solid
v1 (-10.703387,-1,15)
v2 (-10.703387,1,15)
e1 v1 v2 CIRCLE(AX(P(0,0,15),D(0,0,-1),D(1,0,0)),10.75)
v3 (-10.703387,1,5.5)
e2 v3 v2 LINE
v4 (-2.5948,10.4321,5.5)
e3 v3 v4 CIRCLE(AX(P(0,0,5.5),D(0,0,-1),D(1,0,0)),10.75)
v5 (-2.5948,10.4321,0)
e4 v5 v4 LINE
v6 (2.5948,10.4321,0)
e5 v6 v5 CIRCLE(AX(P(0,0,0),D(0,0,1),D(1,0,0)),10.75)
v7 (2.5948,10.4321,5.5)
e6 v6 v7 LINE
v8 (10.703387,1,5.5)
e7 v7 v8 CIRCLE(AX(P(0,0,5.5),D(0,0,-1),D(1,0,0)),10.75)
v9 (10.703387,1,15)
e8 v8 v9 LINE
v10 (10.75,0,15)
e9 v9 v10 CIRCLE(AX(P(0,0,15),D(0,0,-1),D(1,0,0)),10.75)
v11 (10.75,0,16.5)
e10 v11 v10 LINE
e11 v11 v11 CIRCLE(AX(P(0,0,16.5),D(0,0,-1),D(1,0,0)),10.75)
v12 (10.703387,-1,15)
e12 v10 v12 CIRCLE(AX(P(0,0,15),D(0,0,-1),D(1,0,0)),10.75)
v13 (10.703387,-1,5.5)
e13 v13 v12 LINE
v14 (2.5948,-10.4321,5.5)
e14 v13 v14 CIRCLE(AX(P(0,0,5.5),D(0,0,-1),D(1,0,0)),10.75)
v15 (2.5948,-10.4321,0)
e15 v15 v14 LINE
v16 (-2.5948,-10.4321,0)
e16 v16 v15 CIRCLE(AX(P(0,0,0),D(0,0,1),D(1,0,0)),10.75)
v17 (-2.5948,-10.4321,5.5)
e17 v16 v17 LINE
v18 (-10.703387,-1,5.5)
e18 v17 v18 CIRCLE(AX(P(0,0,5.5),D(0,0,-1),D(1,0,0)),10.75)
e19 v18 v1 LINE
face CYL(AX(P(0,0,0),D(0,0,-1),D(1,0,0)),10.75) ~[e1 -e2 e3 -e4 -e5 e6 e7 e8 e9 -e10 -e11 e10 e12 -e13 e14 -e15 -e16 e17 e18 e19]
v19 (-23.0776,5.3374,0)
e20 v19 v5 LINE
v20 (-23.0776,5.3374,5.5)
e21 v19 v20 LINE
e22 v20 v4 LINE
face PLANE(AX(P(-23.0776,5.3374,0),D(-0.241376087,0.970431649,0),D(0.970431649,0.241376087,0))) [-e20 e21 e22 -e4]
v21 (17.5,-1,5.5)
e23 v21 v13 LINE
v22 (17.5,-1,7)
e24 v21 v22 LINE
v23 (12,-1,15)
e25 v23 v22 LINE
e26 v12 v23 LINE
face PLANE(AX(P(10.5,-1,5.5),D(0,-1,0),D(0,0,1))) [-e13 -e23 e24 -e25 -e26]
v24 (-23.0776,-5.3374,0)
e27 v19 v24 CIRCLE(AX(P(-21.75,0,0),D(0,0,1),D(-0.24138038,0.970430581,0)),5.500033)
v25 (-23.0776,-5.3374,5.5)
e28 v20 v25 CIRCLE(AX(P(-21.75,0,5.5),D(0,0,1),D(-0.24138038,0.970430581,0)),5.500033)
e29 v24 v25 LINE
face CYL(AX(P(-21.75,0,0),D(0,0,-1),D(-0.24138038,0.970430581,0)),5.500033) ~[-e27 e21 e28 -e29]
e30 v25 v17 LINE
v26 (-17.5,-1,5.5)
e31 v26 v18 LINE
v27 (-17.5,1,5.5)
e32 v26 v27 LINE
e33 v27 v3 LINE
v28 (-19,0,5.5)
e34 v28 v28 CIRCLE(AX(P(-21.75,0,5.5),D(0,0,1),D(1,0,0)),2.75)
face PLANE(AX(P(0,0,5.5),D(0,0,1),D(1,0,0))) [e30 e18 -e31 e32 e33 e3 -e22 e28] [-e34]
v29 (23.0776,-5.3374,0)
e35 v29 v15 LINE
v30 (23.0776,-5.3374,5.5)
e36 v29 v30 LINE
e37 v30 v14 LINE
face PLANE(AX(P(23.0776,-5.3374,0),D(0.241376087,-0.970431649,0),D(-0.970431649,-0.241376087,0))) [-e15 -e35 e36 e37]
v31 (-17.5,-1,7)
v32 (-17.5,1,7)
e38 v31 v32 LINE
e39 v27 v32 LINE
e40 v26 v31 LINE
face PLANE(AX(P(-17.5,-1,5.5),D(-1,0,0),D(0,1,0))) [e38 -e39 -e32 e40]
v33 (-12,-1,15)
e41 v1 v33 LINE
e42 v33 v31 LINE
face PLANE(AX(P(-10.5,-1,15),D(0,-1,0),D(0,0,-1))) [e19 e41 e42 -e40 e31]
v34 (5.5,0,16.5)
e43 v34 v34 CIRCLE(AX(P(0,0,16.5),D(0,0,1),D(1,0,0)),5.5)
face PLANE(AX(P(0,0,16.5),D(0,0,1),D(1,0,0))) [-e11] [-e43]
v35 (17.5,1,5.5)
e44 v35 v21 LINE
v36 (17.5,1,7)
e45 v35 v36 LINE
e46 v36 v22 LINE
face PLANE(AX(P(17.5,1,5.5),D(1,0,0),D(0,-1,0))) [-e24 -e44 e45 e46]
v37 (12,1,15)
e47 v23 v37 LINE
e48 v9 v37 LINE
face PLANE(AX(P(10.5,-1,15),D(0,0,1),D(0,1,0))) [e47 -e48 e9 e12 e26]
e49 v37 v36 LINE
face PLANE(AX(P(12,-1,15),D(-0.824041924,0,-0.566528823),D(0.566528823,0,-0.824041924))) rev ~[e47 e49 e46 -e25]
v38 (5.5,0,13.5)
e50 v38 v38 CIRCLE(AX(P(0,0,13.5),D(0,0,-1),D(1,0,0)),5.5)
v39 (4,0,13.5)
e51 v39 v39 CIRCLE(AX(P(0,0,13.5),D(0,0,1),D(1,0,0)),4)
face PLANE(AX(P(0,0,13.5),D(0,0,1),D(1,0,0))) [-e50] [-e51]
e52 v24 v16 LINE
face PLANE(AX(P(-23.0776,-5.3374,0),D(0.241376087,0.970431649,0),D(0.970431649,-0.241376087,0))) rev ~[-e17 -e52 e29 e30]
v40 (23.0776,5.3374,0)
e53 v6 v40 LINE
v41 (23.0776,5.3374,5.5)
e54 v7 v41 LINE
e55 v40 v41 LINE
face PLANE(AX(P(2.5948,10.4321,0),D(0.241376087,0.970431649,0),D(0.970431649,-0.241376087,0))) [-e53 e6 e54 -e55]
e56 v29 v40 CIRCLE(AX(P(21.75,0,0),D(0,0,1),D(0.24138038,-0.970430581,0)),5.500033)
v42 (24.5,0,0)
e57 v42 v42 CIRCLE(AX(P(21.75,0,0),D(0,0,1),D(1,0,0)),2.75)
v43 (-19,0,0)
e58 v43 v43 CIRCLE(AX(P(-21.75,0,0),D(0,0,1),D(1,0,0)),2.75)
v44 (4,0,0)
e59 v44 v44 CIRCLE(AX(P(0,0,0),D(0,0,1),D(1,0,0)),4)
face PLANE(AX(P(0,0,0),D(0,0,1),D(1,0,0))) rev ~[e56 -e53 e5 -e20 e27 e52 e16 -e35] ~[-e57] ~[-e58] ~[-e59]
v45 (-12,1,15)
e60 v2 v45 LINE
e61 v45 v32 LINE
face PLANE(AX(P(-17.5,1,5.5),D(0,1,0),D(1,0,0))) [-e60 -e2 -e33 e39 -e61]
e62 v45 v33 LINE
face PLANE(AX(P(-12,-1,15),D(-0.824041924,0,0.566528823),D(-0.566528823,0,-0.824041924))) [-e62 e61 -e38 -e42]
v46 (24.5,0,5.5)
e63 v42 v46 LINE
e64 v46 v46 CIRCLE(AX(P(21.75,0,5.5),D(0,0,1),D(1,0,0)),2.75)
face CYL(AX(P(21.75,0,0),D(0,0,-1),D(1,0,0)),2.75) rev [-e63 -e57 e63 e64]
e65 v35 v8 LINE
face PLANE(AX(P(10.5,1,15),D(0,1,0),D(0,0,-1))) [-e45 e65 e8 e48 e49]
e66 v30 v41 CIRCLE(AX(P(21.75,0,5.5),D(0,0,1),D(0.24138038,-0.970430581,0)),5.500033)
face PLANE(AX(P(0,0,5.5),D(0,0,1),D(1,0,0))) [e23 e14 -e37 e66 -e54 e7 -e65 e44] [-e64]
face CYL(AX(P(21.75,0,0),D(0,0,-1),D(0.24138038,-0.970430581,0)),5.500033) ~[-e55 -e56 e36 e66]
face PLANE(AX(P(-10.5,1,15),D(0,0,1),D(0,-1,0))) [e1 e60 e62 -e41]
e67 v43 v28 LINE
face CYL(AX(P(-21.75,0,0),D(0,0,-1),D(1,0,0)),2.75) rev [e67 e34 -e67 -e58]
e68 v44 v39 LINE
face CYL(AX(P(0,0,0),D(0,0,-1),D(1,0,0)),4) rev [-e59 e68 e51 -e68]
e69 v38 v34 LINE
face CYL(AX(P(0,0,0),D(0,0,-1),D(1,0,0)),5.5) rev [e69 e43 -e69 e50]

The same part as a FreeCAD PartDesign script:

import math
import FreeCAD as App
import Part
import Sketcher
Q = App.Units.Quantity

doc = App.newDocument("Part")
body = doc.addObject("PartDesign::Body", "Body")

sketch1 = body.newObject("Sketcher::SketchObject", "Sketch")
sketch1.AttachmentSupport = (doc.getObject("XY_Plane"), [""])
sketch1.MapMode = "FlatFace"
sketch1.addGeometry([
    Part.ArcOfCircle(Part.Circle(App.Vector(0, 0, 0), App.Vector(0, 0, 1), 10.8), math.radians(-104), math.radians(-76)),
    Part.LineSegment(App.Vector(2.6, -10.4, 0), App.Vector(23.1, -5.3, 0)),
    Part.ArcOfCircle(Part.Circle(App.Vector(21.8, 0, 0), App.Vector(0, 0, 1), 5.5), math.radians(-76), math.radians(76)),
    Part.LineSegment(App.Vector(23.1, 5.3, 0), App.Vector(2.6, 10.4, 0)),
    Part.ArcOfCircle(Part.Circle(App.Vector(0, 0, 0), App.Vector(0, 0, 1), 10.8), math.radians(76), math.radians(104)),
    Part.LineSegment(App.Vector(-2.6, 10.4, 0), App.Vector(-23.1, 5.3, 0)),
    Part.ArcOfCircle(Part.Circle(App.Vector(-21.8, 0, 0), App.Vector(0, 0, 1), 5.5), math.radians(104), math.radians(256)),
    Part.LineSegment(App.Vector(-23.1, -5.3, 0), App.Vector(-2.6, -10.4, 0)),
    Part.Circle(App.Vector(21.8, 0, 0), App.Vector(0, 0, 1), 2.8),
    Part.Circle(App.Vector(-21.8, 0, 0), App.Vector(0, 0, 1), 2.8),
    Part.Circle(App.Vector(0, 0, 0), App.Vector(0, 0, 1), 4),
], False)
sketch1.addConstraint([
    Sketcher.Constraint("Tangent", 0, 2, 1, 1),
    Sketcher.Constraint("Tangent", 1, 2, 2, 1),
    Sketcher.Constraint("Tangent", 2, 2, 3, 1),
    Sketcher.Constraint("Tangent", 3, 2, 4, 1),
    Sketcher.Constraint("Tangent", 4, 2, 5, 1),
    Sketcher.Constraint("Tangent", 5, 2, 6, 1),
    Sketcher.Constraint("Tangent", 6, 2, 7, 1),
    Sketcher.Constraint("Tangent", 7, 2, 0, 1),
    Sketcher.Constraint("Coincident", 0, 3, -1, 1),
    Sketcher.Constraint("Coincident", 4, 3, -1, 1),
    Sketcher.Constraint("Coincident", 10, 3, -1, 1),
    Sketcher.Constraint("Coincident", 8, 3, 2, 3),
    Sketcher.Constraint("Coincident", 9, 3, 6, 3),
    Sketcher.Constraint("Equal", 0, 4),
    Sketcher.Constraint("Equal", 2, 6),
    Sketcher.Constraint("Equal", 8, 9),
    Sketcher.Constraint("Symmetric", 2, 3, 6, 3, -1, 1),
    Sketcher.Constraint("PointOnObject", 2, 3, -1),
    Sketcher.Constraint("Diameter", 10, Q("8 mm")),
    Sketcher.Constraint("Diameter", 8, Q("5.5 mm")),
    Sketcher.Constraint("Radius", 2, Q("5.5 mm")),
    Sketcher.Constraint("Radius", 0, Q("10.75 mm")),
    Sketcher.Constraint("DistanceX", -1, 1, 2, 3, Q("21.75 mm")),
])
pad1 = body.newObject("PartDesign::Pad", "Pad")
pad1.Profile = sketch1
pad1.Length = 5.5

sketch2 = body.newObject("Sketcher::SketchObject", "Sketch001")
sketch2.AttachmentSupport = (doc.getObject("XY_Plane"), [""])
sketch2.MapMode = "FlatFace"
sketch2.addGeometry([
    Part.Circle(App.Vector(0, 0, 0), App.Vector(0, 0, 1), 10.8),
    Part.Circle(App.Vector(0, 0, 0), App.Vector(0, 0, 1), 4),
], False)
sketch2.addConstraint([
    Sketcher.Constraint("Coincident", 0, 3, -1, 1),
    Sketcher.Constraint("Coincident", 1, 3, -1, 1),
    Sketcher.Constraint("Diameter", 1, Q("8 mm")),
    Sketcher.Constraint("Diameter", 0, Q("21.5 mm")),
])
pad2 = body.newObject("PartDesign::Pad", "Pad001")
pad2.Profile = sketch2
pad2.Length = 13.5

sketch3 = body.newObject("Sketcher::SketchObject", "Sketch002")
sketch3.AttachmentSupport = (doc.getObject("XY_Plane"), [""])
sketch3.MapMode = "FlatFace"
sketch3.addGeometry([
    Part.Circle(App.Vector(0, 0, 0), App.Vector(0, 0, 1), 11),
    Part.Circle(App.Vector(0, 0, 0), App.Vector(0, 0, 1), 6),
], False)
sketch3.addConstraint([
    Sketcher.Constraint("Coincident", 0, 3, -1, 1),
    Sketcher.Constraint("Coincident", 1, 3, -1, 1),
    Sketcher.Constraint("Diameter", 1, Q("11 mm")),
    Sketcher.Constraint("Diameter", 0, Q("21.5 mm")),
])
pad3 = body.newObject("PartDesign::Pad", "Pad002")
pad3.Profile = sketch3
pad3.Length = 16.5

sketch4 = body.newObject("Sketcher::SketchObject", "Sketch003")
sketch4.AttachmentSupport = (doc.getObject("XY_Plane"), [""])
sketch4.MapMode = "FlatFace"
sketch4.AttachmentOffset = App.Placement(App.Vector(0, 0, 5.5), App.Rotation())
sketch4.addGeometry([
    Part.LineSegment(App.Vector(-17.5, 1, 0), App.Vector(-17.5, -1, 0)),
    Part.LineSegment(App.Vector(-17.5, -1, 0), App.Vector(-10.5, -1, 0)),
    Part.LineSegment(App.Vector(-10.5, -1, 0), App.Vector(-10.5, 1, 0)),
    Part.LineSegment(App.Vector(-10.5, 1, 0), App.Vector(-17.5, 1, 0)),
    Part.LineSegment(App.Vector(10.5, -1, 0), App.Vector(17.5, -1, 0)),
    Part.LineSegment(App.Vector(17.5, -1, 0), App.Vector(17.5, 1, 0)),
    Part.LineSegment(App.Vector(17.5, 1, 0), App.Vector(10.5, 1, 0)),
    Part.LineSegment(App.Vector(10.5, 1, 0), App.Vector(10.5, -1, 0)),
], False)
sketch4.addConstraint([
    Sketcher.Constraint("Coincident", 0, 2, 1, 1),
    Sketcher.Constraint("Coincident", 1, 2, 2, 1),
    Sketcher.Constraint("Coincident", 2, 2, 3, 1),
    Sketcher.Constraint("Coincident", 3, 2, 0, 1),
    Sketcher.Constraint("Coincident", 4, 2, 5, 1),
    Sketcher.Constraint("Coincident", 5, 2, 6, 1),
    Sketcher.Constraint("Coincident", 6, 2, 7, 1),
    Sketcher.Constraint("Coincident", 7, 2, 4, 1),
    Sketcher.Constraint("Vertical", 0),
    Sketcher.Constraint("Horizontal", 1),
    Sketcher.Constraint("Vertical", 2),
    Sketcher.Constraint("Horizontal", 3),
    Sketcher.Constraint("Horizontal", 4),
    Sketcher.Constraint("Vertical", 5),
    Sketcher.Constraint("Horizontal", 6),
    Sketcher.Constraint("Vertical", 7),
    Sketcher.Constraint("Symmetric", 3, 2, 4, 2, -1, 1),
    Sketcher.Constraint("Symmetric", 1, 2, 6, 2, -1, 1),
    Sketcher.Constraint("Horizontal", 1, 2, 4, 2),
    Sketcher.Constraint("DistanceX", 1, 1, 1, 2, Q("7 mm")),
    Sketcher.Constraint("DistanceY", 0, 2, 0, 1, Q("2 mm")),
    Sketcher.Constraint("DistanceX", 1, 2, -1, 1, Q("10.5 mm")),
])
pocket1 = body.newObject("PartDesign::Pocket", "Pocket")
pocket1.Profile = sketch4
pocket1.Length = 9.5
pocket1.Reversed = True

sketch5 = body.newObject("Sketcher::SketchObject", "Sketch004")
sketch5.AttachmentSupport = (doc.getObject("XY_Plane"), [""])
sketch5.MapMode = "FlatFace"
sketch5.AttachmentOffset = App.Placement(App.Vector(0, 0, 5.5), App.Rotation())
sketch5.addGeometry([
    Part.LineSegment(App.Vector(-17.5, 1, 0), App.Vector(-17.5, -1, 0)),
    Part.LineSegment(App.Vector(-17.5, -1, 0), App.Vector(-10.5, -1, 0)),
    Part.LineSegment(App.Vector(-10.5, -1, 0), App.Vector(-10.5, 1, 0)),
    Part.LineSegment(App.Vector(-10.5, 1, 0), App.Vector(-17.5, 1, 0)),
    Part.LineSegment(App.Vector(10.5, -1, 0), App.Vector(17.5, -1, 0)),
    Part.LineSegment(App.Vector(17.5, -1, 0), App.Vector(17.5, 1, 0)),
    Part.LineSegment(App.Vector(17.5, 1, 0), App.Vector(10.5, 1, 0)),
    Part.LineSegment(App.Vector(10.5, 1, 0), App.Vector(10.5, -1, 0)),
], False)
sketch5.addConstraint([
    Sketcher.Constraint("Coincident", 0, 2, 1, 1),
    Sketcher.Constraint("Coincident", 1, 2, 2, 1),
    Sketcher.Constraint("Coincident", 2, 2, 3, 1),
    Sketcher.Constraint("Coincident", 3, 2, 0, 1),
    Sketcher.Constraint("Coincident", 4, 2, 5, 1),
    Sketcher.Constraint("Coincident", 5, 2, 6, 1),
    Sketcher.Constraint("Coincident", 6, 2, 7, 1),
    Sketcher.Constraint("Coincident", 7, 2, 4, 1),
    Sketcher.Constraint("Vertical", 0),
    Sketcher.Constraint("Horizontal", 1),
    Sketcher.Constraint("Vertical", 2),
    Sketcher.Constraint("Horizontal", 3),
    Sketcher.Constraint("Horizontal", 4),
    Sketcher.Constraint("Vertical", 5),
    Sketcher.Constraint("Horizontal", 6),
    Sketcher.Constraint("Vertical", 7),
    Sketcher.Constraint("Symmetric", 3, 2, 4, 2, -1, 1),
    Sketcher.Constraint("Symmetric", 1, 2, 6, 2, -1, 1),
    Sketcher.Constraint("Horizontal", 1, 2, 4, 2),
    Sketcher.Constraint("DistanceX", 1, 1, 1, 2, Q("7 mm")),
    Sketcher.Constraint("DistanceY", 0, 2, 0, 1, Q("2 mm")),
    Sketcher.Constraint("DistanceX", 1, 2, -1, 1, Q("10.5 mm")),
])
pad4 = body.newObject("PartDesign::Pad", "Pad003")
pad4.Profile = sketch5
pad4.Length = 1.5

sketch6 = body.newObject("Sketcher::SketchObject", "Sketch005")
sketch6.AttachmentSupport = (doc.getObject("YZ_Plane"), [""])
sketch6.MapMode = "FlatFace"
sketch6.AttachmentOffset = App.Placement(App.Vector(0, 0, -10.5), App.Rotation())
sketch6.addGeometry([
    Part.LineSegment(App.Vector(-1, 5.5, 0), App.Vector(-1, 15, 0)),
    Part.LineSegment(App.Vector(-1, 15, 0), App.Vector(1, 15, 0)),
    Part.LineSegment(App.Vector(1, 15, 0), App.Vector(1, 5.5, 0)),
    Part.LineSegment(App.Vector(1, 5.5, 0), App.Vector(-1, 5.5, 0)),
], False)
sketch6.addConstraint([
    Sketcher.Constraint("Coincident", 0, 2, 1, 1),
    Sketcher.Constraint("Coincident", 1, 2, 2, 1),
    Sketcher.Constraint("Coincident", 2, 2, 3, 1),
    Sketcher.Constraint("Coincident", 3, 2, 0, 1),
    Sketcher.Constraint("Vertical", 0),
    Sketcher.Constraint("Horizontal", 1),
    Sketcher.Constraint("Vertical", 2),
    Sketcher.Constraint("Horizontal", 3),
    Sketcher.Constraint("DistanceX", 1, 1, 1, 2, Q("2 mm")),
    Sketcher.Constraint("DistanceY", 0, 1, 0, 2, Q("9.5 mm")),
    Sketcher.Constraint("DistanceX", 0, 2, -1, 1, Q("1 mm")),
    Sketcher.Constraint("DistanceY", -1, 1, 0, 2, Q("15 mm")),
])
pad5 = body.newObject("PartDesign::Pad", "Pad004")
pad5.Profile = sketch6
pad5.Length = 1.5
pad5.Reversed = True

sketch7 = body.newObject("Sketcher::SketchObject", "Sketch006")
sketch7.AttachmentSupport = (doc.getObject("YZ_Plane"), [""])
sketch7.MapMode = "FlatFace"
sketch7.AttachmentOffset = App.Placement(App.Vector(0, 0, 10.5), App.Rotation())
sketch7.addGeometry([
    Part.LineSegment(App.Vector(1, 5.5, 0), App.Vector(1, 15, 0)),
    Part.LineSegment(App.Vector(1, 15, 0), App.Vector(-1, 15, 0)),
    Part.LineSegment(App.Vector(-1, 15, 0), App.Vector(-1, 5.5, 0)),
    Part.LineSegment(App.Vector(-1, 5.5, 0), App.Vector(1, 5.5, 0)),
], False)
sketch7.addConstraint([
    Sketcher.Constraint("Coincident", 0, 2, 1, 1),
    Sketcher.Constraint("Coincident", 1, 2, 2, 1),
    Sketcher.Constraint("Coincident", 2, 2, 3, 1),
    Sketcher.Constraint("Coincident", 3, 2, 0, 1),
    Sketcher.Constraint("Vertical", 0),
    Sketcher.Constraint("Horizontal", 1),
    Sketcher.Constraint("Vertical", 2),
    Sketcher.Constraint("Horizontal", 3),
    Sketcher.Constraint("DistanceX", 1, 2, 1, 1, Q("2 mm")),
    Sketcher.Constraint("DistanceY", 0, 1, 0, 2, Q("9.5 mm")),
    Sketcher.Constraint("DistanceX", -1, 1, 0, 2, Q("1 mm")),
    Sketcher.Constraint("DistanceY", -1, 1, 0, 2, Q("15 mm")),
])
pad6 = body.newObject("PartDesign::Pad", "Pad005")
pad6.Profile = sketch7
pad6.Length = 1.5

sketch8 = body.newObject("Sketcher::SketchObject", "Sketch007")
sketch8.AttachmentSupport = (doc.getObject("XZ_Plane"), [""])
sketch8.MapMode = "FlatFace"
sketch8.AttachmentOffset = App.Placement(App.Vector(0, 0, 1), App.Rotation())
sketch8.addGeometry([
    Part.LineSegment(App.Vector(12, 15, 0), App.Vector(12, 7, 0)),
    Part.LineSegment(App.Vector(12, 7, 0), App.Vector(18, 7, 0)),
    Part.LineSegment(App.Vector(18, 7, 0), App.Vector(12, 15, 0)),
    Part.LineSegment(App.Vector(-12, 7, 0), App.Vector(-12, 15, 0)),
    Part.LineSegment(App.Vector(-12, 15, 0), App.Vector(-18, 7, 0)),
    Part.LineSegment(App.Vector(-18, 7, 0), App.Vector(-12, 7, 0)),
], False)
sketch8.addConstraint([
    Sketcher.Constraint("Coincident", 0, 2, 1, 1),
    Sketcher.Constraint("Coincident", 1, 2, 2, 1),
    Sketcher.Constraint("Coincident", 2, 2, 0, 1),
    Sketcher.Constraint("Coincident", 3, 2, 4, 1),
    Sketcher.Constraint("Coincident", 4, 2, 5, 1),
    Sketcher.Constraint("Coincident", 5, 2, 3, 1),
    Sketcher.Constraint("Vertical", 0),
    Sketcher.Constraint("Horizontal", 1),
    Sketcher.Constraint("Vertical", 3),
    Sketcher.Constraint("Horizontal", 5),
    Sketcher.Constraint("Symmetric", 2, 2, 3, 2, -2),
    Sketcher.Constraint("Symmetric", 1, 2, 4, 2, -2),
    Sketcher.Constraint("DistanceY", 0, 2, 0, 1, Q("8 mm")),
    Sketcher.Constraint("DistanceX", 1, 1, 1, 2, Q("5.5 mm")),
    Sketcher.Constraint("DistanceX", -1, 1, 0, 2, Q("12 mm")),
    Sketcher.Constraint("DistanceY", -1, 1, 0, 2, Q("7 mm")),
])
pad7 = body.newObject("PartDesign::Pad", "Pad006")
pad7.Profile = sketch8
pad7.Length = 2
pad7.Reversed = True

doc.recompute()
